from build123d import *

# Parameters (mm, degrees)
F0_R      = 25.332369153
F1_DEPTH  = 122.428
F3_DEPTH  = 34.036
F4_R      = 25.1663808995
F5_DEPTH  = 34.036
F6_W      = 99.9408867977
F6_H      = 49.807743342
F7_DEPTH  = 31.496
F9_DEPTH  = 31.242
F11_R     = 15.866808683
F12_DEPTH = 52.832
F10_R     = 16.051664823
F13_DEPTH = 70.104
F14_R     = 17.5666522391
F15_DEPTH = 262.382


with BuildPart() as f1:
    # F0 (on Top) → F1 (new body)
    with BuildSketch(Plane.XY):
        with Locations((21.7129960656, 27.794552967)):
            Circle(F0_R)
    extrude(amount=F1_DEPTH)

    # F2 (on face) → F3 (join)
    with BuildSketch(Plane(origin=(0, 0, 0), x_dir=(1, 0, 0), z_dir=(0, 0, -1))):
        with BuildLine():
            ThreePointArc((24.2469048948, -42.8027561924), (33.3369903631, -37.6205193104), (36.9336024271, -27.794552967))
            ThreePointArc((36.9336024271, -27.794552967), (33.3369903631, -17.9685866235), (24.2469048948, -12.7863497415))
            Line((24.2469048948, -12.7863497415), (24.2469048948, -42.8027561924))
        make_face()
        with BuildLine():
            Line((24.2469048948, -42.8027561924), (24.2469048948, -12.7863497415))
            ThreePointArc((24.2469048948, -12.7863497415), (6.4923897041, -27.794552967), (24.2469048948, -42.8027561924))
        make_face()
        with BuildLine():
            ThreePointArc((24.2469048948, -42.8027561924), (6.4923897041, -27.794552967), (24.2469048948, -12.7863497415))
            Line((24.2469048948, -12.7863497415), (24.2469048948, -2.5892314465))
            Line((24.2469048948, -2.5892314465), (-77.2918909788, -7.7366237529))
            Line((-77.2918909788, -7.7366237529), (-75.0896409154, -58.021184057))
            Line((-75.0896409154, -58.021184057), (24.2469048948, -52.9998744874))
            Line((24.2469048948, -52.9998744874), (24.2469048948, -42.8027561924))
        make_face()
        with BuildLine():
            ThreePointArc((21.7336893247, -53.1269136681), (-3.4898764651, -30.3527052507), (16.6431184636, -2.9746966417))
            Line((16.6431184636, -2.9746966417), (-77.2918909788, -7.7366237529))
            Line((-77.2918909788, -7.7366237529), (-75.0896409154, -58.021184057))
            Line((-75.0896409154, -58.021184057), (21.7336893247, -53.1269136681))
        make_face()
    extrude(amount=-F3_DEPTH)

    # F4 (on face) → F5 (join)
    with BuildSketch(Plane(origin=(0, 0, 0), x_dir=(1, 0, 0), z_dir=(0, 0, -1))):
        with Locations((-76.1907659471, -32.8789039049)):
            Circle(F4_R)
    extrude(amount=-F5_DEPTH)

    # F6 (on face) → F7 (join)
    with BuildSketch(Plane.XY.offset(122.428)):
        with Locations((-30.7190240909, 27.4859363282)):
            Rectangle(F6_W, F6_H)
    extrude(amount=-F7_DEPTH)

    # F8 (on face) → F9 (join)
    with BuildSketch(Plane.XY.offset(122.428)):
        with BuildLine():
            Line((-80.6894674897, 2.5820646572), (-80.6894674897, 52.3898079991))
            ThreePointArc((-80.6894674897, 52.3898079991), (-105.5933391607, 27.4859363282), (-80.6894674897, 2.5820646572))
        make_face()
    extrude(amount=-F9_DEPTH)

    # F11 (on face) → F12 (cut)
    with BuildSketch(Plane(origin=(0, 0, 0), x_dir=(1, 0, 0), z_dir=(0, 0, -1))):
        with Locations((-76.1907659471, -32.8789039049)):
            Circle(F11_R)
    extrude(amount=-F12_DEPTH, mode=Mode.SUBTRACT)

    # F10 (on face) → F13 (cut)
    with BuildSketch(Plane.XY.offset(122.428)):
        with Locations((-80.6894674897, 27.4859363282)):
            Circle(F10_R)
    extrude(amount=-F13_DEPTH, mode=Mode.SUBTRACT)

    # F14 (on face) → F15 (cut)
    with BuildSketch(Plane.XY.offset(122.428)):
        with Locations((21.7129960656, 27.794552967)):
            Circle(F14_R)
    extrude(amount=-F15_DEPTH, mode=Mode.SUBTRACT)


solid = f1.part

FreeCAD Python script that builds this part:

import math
import FreeCAD as App
import Part
import Sketcher

V = App.Vector
Q = App.Units.Quantity


def add_polygon(sketch, points):
    """Adds a closed chain of lines whose ends are joined by coincident constraints."""
    first, n = sketch.GeometryCount, len(points)
    for a, b in zip(points, points[1:] + points[:1]):
        sketch.addGeometry(Part.LineSegment(App.Vector(*a, 0), App.Vector(*b, 0)), False)
    for i in range(n):
        sketch.addConstraint(Sketcher.Constraint("Coincident", first + i, 2, first + (i + 1) % n, 1))

doc = App.newDocument("Part")
body = doc.addObject("PartDesign::Body", "Body")

# Sketch on XY plane
sketch1 = doc.addObject("Sketcher::SketchObject", "Sketch")
body.addObject(sketch1)
sketch1.AttachmentSupport = (doc.XY_Plane, [""])
sketch1.MapMode = "FlatFace"
sketch1.addGeometry(Part.Circle(V(21.712996, 27.794553, 0), V(0, 0, 1), 25.332369), False)
sketch1.addConstraint([
    Sketcher.Constraint("Diameter", 0, Q("50.664738 mm")),
    Sketcher.Constraint("DistanceX", -1, 1, 0, 3, Q("21.712996 mm")),
    Sketcher.Constraint("DistanceY", -1, 1, 0, 3, Q("27.794553 mm")),
])
pad1 = doc.addObject("PartDesign::Pad", "Pad")
body.addObject(pad1)
pad1.Profile = sketch1
pad1.Length = Q("4.82 in")

# Sketch on XY plane
sketch2 = doc.addObject("Sketcher::SketchObject", "Sketch001")
body.addObject(sketch2)
sketch2.AttachmentSupport = (doc.XY_Plane, [""])
sketch2.MapMode = "FlatFace"
sketch2.addGeometry([
    Part.ArcOfCircle(Part.Circle(V(21.712996, 27.794553, 0), V(0, 0, 1), 15.220606), math.radians(-80.416846), math.radians(80.416846)),  # 0
    Part.LineSegment(V(24.246905, 12.78635, 0), V(24.246905, 2.589231, 0)),  # 1
    Part.LineSegment(V(24.246905, 2.589231, 0), V(-77.291891, 7.736624, 0)),  # 2
    Part.LineSegment(V(-77.291891, 7.736624, 0), V(-75.089641, 58.021184, 0)),  # 3
    Part.LineSegment(V(-75.089641, 58.021184, 0), V(24.246905, 52.999874, 0)),  # 4
    Part.LineSegment(V(24.246905, 52.999874, 0), V(24.246905, 42.802756, 0)),  # 5
], False)
sketch2.addConstraint([
    Sketcher.Constraint("Coincident", 0, 1, 1, 1),
    Sketcher.Constraint("Coincident", 1, 2, 2, 1),
    Sketcher.Constraint("Coincident", 2, 2, 3, 1),
    Sketcher.Constraint("Coincident", 3, 2, 4, 1),
    Sketcher.Constraint("Coincident", 4, 2, 5, 1),
    Sketcher.Constraint("Coincident", 5, 2, 0, 2),
    Sketcher.Constraint("Vertical", 1),
    Sketcher.Constraint("Vertical", 5),
    Sketcher.Constraint("Vertical", 1, 2, 4, 2),
    Sketcher.Constraint("Equal", 1, 5),
    Sketcher.Constraint("Radius", 0, Q("15.220606 mm")),
    Sketcher.Constraint("DistanceY", 1, 2, 1, 1, Q("10.197118 mm")),
    Sketcher.Constraint("Distance", 3, Q("50.332762 mm")),
    Sketcher.Constraint("DistanceY", -1, 1, 0, 1, Q("12.78635 mm")),
    Sketcher.Constraint("DistanceX", 2, 2, -1, 1, Q("77.291891 mm")),
    Sketcher.Constraint("DistanceX", 3, 2, -1, 1, Q("75.089641 mm")),
    Sketcher.Constraint("DistanceX", 0, 3, 0, 1, Q("2.533909 mm")),
    Sketcher.Constraint("DistanceY", 2, 2, 0, 3, Q("20.057929 mm")),
    Sketcher.Constraint("Distance", 2, Q("101.669183 mm")),
])
pad2 = doc.addObject("PartDesign::Pad", "Pad001")
body.addObject(pad2)
pad2.Profile = sketch2
pad2.Length = Q("1.34 in")

# Sketch on XY plane
sketch3 = doc.addObject("Sketcher::SketchObject", "Sketch002")
body.addObject(sketch3)
sketch3.AttachmentSupport = (doc.XY_Plane, [""])
sketch3.MapMode = "FlatFace"
sketch3.addGeometry(Part.Circle(V(-76.190766, 32.878904, 0), V(0, 0, 1), 25.166381), False)
sketch3.addConstraint([
    Sketcher.Constraint("Diameter", 0, Q("50.332762 mm")),
    Sketcher.Constraint("DistanceX", 0, 3, -1, 1, Q("76.190766 mm")),
    Sketcher.Constraint("DistanceY", -1, 1, 0, 3, Q("32.878904 mm")),
])
pad3 = doc.addObject("PartDesign::Pad", "Pad002")
body.addObject(pad3)
pad3.Profile = sketch3
pad3.Length = Q("1.34 in")

# Sketch on XY plane
sketch4 = doc.addObject("Sketcher::SketchObject", "Sketch003")
body.addObject(sketch4)
sketch4.AttachmentSupport = (doc.XY_Plane, [""])
sketch4.MapMode = "FlatFace"
sketch4.AttachmentOffset = App.Placement(V(0, 0, 4.82 * 25.4), App.Rotation())
add_polygon(sketch4, [(-80.689467, 52.389808), (-80.689467, 2.582065), (19.251419, 2.582065), (19.251419, 52.389808)])  # lines 0-3
sketch4.addConstraint([
    Sketcher.Constraint("Vertical", 0),
    Sketcher.Constraint("Horizontal", 1),
    Sketcher.Constraint("Vertical", 2),
    Sketcher.Constraint("Horizontal", 3),
    Sketcher.Constraint("DistanceX", 1, 1, 1, 2, Q("99.940887 mm")),
    Sketcher.Constraint("DistanceY", 0, 2, 0, 1, Q("49.807743 mm")),
    Sketcher.Constraint("DistanceX", -1, 1, 1, 2, Q("19.251419 mm")),
    Sketcher.Constraint("DistanceY", -1, 1, 0, 2, Q("2.582065 mm")),
])
pad4 = doc.addObject("PartDesign::Pad", "Pad003")
body.addObject(pad4)
pad4.Profile = sketch4
pad4.Length = Q("1.24 in")
pad4.Reversed = True

# Sketch on XY plane
sketch5 = doc.addObject("Sketcher::SketchObject", "Sketch004")
body.addObject(sketch5)
sketch5.AttachmentSupport = (doc.XY_Plane, [""])
sketch5.MapMode = "FlatFace"
sketch5.AttachmentOffset = App.Placement(V(0, 0, 4.82 * 25.4), App.Rotation())
sketch5.addGeometry([
    Part.LineSegment(V(-80.689467, 2.582065, 0), V(-80.689467, 52.389808, 0)),
    Part.ArcOfCircle(Part.Circle(V(-80.689467, 27.485936, 0), V(0, 0, 1), 24.903872), math.radians(90), math.radians(270)),
], False)
sketch5.addConstraint([
    Sketcher.Constraint("Coincident", 0, 1, 1, 2),
    Sketcher.Constraint("Coincident", 1, 1, 0, 2),
    Sketcher.Constraint("Vertical", 0),
    Sketcher.Constraint("Vertical", 1, 3, 0, 1),
    Sketcher.Constraint("Radius", 1, Q("24.903872 mm")),
    Sketcher.Constraint("DistanceX", 1, 3, -1, 1, Q("80.689467 mm")),
    Sketcher.Constraint("DistanceY", -1, 1, 1, 3, Q("27.485936 mm")),
])
pad5 = doc.addObject("PartDesign::Pad", "Pad004")
body.addObject(pad5)
pad5.Profile = sketch5
pad5.Length = Q("1.23 in")
pad5.Reversed = True

# Sketch on XY plane
sketch6 = doc.addObject("Sketcher::SketchObject", "Sketch005")
body.addObject(sketch6)
sketch6.AttachmentSupport = (doc.XY_Plane, [""])
sketch6.MapMode = "FlatFace"
sketch6.addGeometry(Part.Circle(V(-76.190766, 32.878904, 0), V(0, 0, 1), 15.866809), False)
sketch6.addConstraint([
    Sketcher.Constraint("Diameter", 0, Q("31.733617 mm")),
    Sketcher.Constraint("DistanceX", 0, 3, -1, 1, Q("76.190766 mm")),
    Sketcher.Constraint("DistanceY", -1, 1, 0, 3, Q("32.878904 mm")),
])
pocket1 = doc.addObject("PartDesign::Pocket", "Pocket")
body.addObject(pocket1)
pocket1.Profile = sketch6
pocket1.Length = Q("2.08 in")
pocket1.Reversed = True

# Sketch on XY plane
sketch7 = doc.addObject("Sketcher::SketchObject", "Sketch006")
body.addObject(sketch7)
sketch7.AttachmentSupport = (doc.XY_Plane, [""])
sketch7.MapMode = "FlatFace"
sketch7.AttachmentOffset = App.Placement(V(0, 0, 4.82 * 25.4), App.Rotation())
sketch7.addGeometry(Part.Circle(V(-80.689467, 27.485936, 0), V(0, 0, 1), 16.051665), False)
sketch7.addConstraint([
    Sketcher.Constraint("Diameter", 0, Q("32.10333 mm")),
    Sketcher.Constraint("DistanceX", 0, 3, -1, 1, Q("80.689467 mm")),
    Sketcher.Constraint("DistanceY", -1, 1, 0, 3, Q("27.485936 mm")),
])
pocket2 = doc.addObject("PartDesign::Pocket", "Pocket001")
body.addObject(pocket2)
pocket2.Profile = sketch7
pocket2.Length = Q("2.76 in")

# Sketch on XY plane
sketch8 = doc.addObject("Sketcher::SketchObject", "Sketch007")
body.addObject(sketch8)
sketch8.AttachmentSupport = (doc.XY_Plane, [""])
sketch8.MapMode = "FlatFace"
sketch8.AttachmentOffset = App.Placement(V(0, 0, 4.82 * 25.4), App.Rotation())
sketch8.addGeometry(Part.Circle(V(21.712996, 27.794553, 0), V(0, 0, 1), 17.566652), False)
sketch8.addConstraint([
    Sketcher.Constraint("Diameter", 0, Q("35.133304 mm")),
    Sketcher.Constraint("DistanceX", -1, 1, 0, 3, Q("21.712996 mm")),
    Sketcher.Constraint("DistanceY", -1, 1, 0, 3, Q("27.794553 mm")),
])
pocket3 = doc.addObject("PartDesign::Pocket", "Pocket002")
body.addObject(pocket3)
pocket3.Profile = sketch8
pocket3.Length = Q("10.33 in")

doc.recompute()
